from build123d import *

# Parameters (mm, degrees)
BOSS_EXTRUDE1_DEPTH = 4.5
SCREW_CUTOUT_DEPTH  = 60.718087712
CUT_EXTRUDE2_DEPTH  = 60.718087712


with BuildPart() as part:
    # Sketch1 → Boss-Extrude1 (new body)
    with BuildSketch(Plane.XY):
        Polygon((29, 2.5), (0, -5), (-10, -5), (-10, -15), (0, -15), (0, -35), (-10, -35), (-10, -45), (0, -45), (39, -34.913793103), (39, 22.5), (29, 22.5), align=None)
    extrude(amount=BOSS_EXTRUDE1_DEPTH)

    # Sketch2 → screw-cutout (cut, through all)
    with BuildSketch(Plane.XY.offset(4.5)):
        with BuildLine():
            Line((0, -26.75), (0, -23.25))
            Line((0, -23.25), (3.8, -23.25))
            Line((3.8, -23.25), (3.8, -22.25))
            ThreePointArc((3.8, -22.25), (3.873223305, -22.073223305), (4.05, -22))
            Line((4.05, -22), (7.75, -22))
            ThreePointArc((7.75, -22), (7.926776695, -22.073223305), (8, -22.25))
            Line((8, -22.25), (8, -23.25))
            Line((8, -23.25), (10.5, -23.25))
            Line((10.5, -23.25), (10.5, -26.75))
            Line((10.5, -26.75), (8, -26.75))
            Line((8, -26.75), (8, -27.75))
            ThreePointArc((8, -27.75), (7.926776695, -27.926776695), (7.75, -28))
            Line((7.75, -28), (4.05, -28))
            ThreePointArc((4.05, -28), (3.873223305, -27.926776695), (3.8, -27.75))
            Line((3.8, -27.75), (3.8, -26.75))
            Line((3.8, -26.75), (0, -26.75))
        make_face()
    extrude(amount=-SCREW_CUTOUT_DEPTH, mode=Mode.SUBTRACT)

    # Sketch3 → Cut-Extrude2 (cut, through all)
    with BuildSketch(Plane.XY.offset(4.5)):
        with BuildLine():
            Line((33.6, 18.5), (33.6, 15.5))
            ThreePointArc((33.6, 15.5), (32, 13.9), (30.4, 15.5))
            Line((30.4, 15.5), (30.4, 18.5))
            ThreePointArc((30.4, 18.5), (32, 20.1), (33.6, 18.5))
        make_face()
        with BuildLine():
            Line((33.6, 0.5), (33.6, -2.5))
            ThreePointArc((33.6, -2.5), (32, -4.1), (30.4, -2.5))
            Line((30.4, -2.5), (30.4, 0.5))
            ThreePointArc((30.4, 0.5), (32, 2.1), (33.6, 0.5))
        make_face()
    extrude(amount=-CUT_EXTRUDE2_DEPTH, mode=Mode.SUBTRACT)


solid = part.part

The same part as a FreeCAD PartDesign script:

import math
import FreeCAD as App
import Part
import Sketcher


def add_polygon(sketch, points):
    """Adds a closed chain of lines whose ends are joined by coincident constraints."""
    first, n = sketch.GeometryCount, len(points)
    for a, b in zip(points, points[1:] + points[:1]):
        sketch.addGeometry(Part.LineSegment(App.Vector(*a, 0), App.Vector(*b, 0)), False)
    for i in range(n):
        sketch.addConstraint(Sketcher.Constraint("Coincident", first + i, 2, first + (i + 1) % n, 1))

doc = App.newDocument("Part")
body = doc.addObject("PartDesign::Body", "Body")

sketch1 = body.newObject("Sketcher::SketchObject", "Sketch")
sketch1.AttachmentSupport = (doc.getObject("XY_Plane"), [""])
sketch1.MapMode = "FlatFace"
add_polygon(sketch1, [(29, 2), (0, -5), (-10, -5), (-10, -15), (0, -15), (0, -35), (-10, -35), (-10, -45), (0, -45), (39, -35), (39, 22), (29, 22)])
sketch1.addConstraint([
    Sketcher.Constraint("Horizontal", 1),
    Sketcher.Constraint("Vertical", 2),
    Sketcher.Constraint("Horizontal", 3),
    Sketcher.Constraint("Vertical", 4),
    Sketcher.Constraint("Horizontal", 5),
    Sketcher.Constraint("Vertical", 6),
    Sketcher.Constraint("Horizontal", 7),
    Sketcher.Constraint("Vertical", 9),
    Sketcher.Constraint("Horizontal", 10),
    Sketcher.Constraint("Vertical", 11),
    Sketcher.Constraint("PointOnObject", 0, 2, -2),
    Sketcher.Constraint("PointOnObject", 3, 2, -2),
    Sketcher.Constraint("PointOnObject", 7, 2, -2),
    Sketcher.Constraint("Parallel", 0, 8),
    Sketcher.Constraint("Vertical", 2, 2, 5, 2),
    Sketcher.Constraint("Equal", 7, 10),
    Sketcher.Constraint("Equal", 10, 2),
    Sketcher.Constraint("Equal", 2, 6),
    Sketcher.Constraint("Equal", 4, 11),
    Sketcher.Constraint("DistanceX", 1, 2, 1, 1, 10.0),
    Sketcher.Constraint("DistanceY", 4, 2, 4, 1, 20.0),
    Sketcher.Constraint("DistanceY", 0, 2, -1, 1, 5.0),
    Sketcher.Constraint("DistanceX", -1, 1, 8, 2, 39.0),
    Sketcher.Constraint("DistanceY", -1, 1, 9, 2, 22.5),
])
pad1 = body.newObject("PartDesign::Pad", "Pad")
pad1.Profile = sketch1
pad1.Length = 4.5

sketch2 = body.newObject("Sketcher::SketchObject", "Sketch001")
sketch2.AttachmentSupport = (doc.getObject("XY_Plane"), [""])
sketch2.MapMode = "FlatFace"
sketch2.AttachmentOffset = App.Placement(App.Vector(0, 0, 4.5), App.Rotation())
sketch2.addGeometry([
    Part.LineSegment(App.Vector(0, -23.25, 0), App.Vector(0, -26.75, 0)),
    Part.LineSegment(App.Vector(0, -26.75, 0), App.Vector(3.8, -26.75, 0)),
    Part.LineSegment(App.Vector(3.8, -26.75, 0), App.Vector(3.8, -27.75, 0)),
    Part.ArcOfCircle(Part.Circle(App.Vector(4.05, -27.75, 0), App.Vector(0, 0, 1), 0.25), math.radians(-180), math.radians(-90)),
    Part.LineSegment(App.Vector(4.05, -28, 0), App.Vector(7.75, -28, 0)),
    Part.ArcOfCircle(Part.Circle(App.Vector(7.75, -27.75, 0), App.Vector(0, 0, 1), 0.25), math.radians(-90), math.radians(0)),
    Part.LineSegment(App.Vector(8, -27.75, 0), App.Vector(8, -26.75, 0)),
    Part.LineSegment(App.Vector(8, -26.75, 0), App.Vector(10.5, -26.75, 0)),
    Part.LineSegment(App.Vector(10.5, -26.75, 0), App.Vector(10.5, -23.25, 0)),
    Part.LineSegment(App.Vector(10.5, -23.25, 0), App.Vector(8, -23.25, 0)),
    Part.LineSegment(App.Vector(8, -23.25, 0), App.Vector(8, -22.25, 0)),
    Part.ArcOfCircle(Part.Circle(App.Vector(7.75, -22.25, 0), App.Vector(0, 0, 1), 0.25), math.radians(0), math.radians(90)),
    Part.LineSegment(App.Vector(7.75, -22, 0), App.Vector(4.05, -22, 0)),
    Part.ArcOfCircle(Part.Circle(App.Vector(4.05, -22.25, 0), App.Vector(0, 0, 1), 0.25), math.radians(90), math.radians(180)),
    Part.LineSegment(App.Vector(3.8, -22.25, 0), App.Vector(3.8, -23.25, 0)),
    Part.LineSegment(App.Vector(3.8, -23.25, 0), App.Vector(0, -23.25, 0)),
], False)
sketch2.addConstraint([
    Sketcher.Constraint("Coincident", 0, 2, 1, 1),
    Sketcher.Constraint("Coincident", 1, 2, 2, 1),
    Sketcher.Constraint("Tangent", 2, 2, 3, 1),
    Sketcher.Constraint("Tangent", 3, 2, 4, 1),
    Sketcher.Constraint("Tangent", 4, 2, 5, 1),
    Sketcher.Constraint("Tangent", 5, 2, 6, 1),
    Sketcher.Constraint("Coincident", 6, 2, 7, 1),
    Sketcher.Constraint("Coincident", 7, 2, 8, 1),
    Sketcher.Constraint("Coincident", 8, 2, 9, 1),
    Sketcher.Constraint("Coincident", 9, 2, 10, 1),
    Sketcher.Constraint("Tangent", 10, 2, 11, 1),
    Sketcher.Constraint("Tangent", 11, 2, 12, 1),
    Sketcher.Constraint("Tangent", 12, 2, 13, 1),
    Sketcher.Constraint("Tangent", 13, 2, 14, 1),
    Sketcher.Constraint("Coincident", 14, 2, 15, 1),
    Sketcher.Constraint("Coincident", 15, 2, 0, 1),
    Sketcher.Constraint("Vertical", 0),
    Sketcher.Constraint("Horizontal", 1),
    Sketcher.Constraint("Vertical", 2),
    Sketcher.Constraint("Horizontal", 4),
    Sketcher.Constraint("Vertical", 6),
    Sketcher.Constraint("Horizontal", 7),
    Sketcher.Constraint("Vertical", 8),
    Sketcher.Constraint("Horizontal", 9),
    Sketcher.Constraint("Vertical", 10),
    Sketcher.Constraint("Horizontal", 12),
    Sketcher.Constraint("Vertical", 14),
    Sketcher.Constraint("Horizontal", 15),
    Sketcher.Constraint("Equal", 3, 5),
    Sketcher.Constraint("Equal", 5, 11),
    Sketcher.Constraint("Equal", 11, 13),
    Sketcher.Constraint("PointOnObject", 0, 2, -2),
    Sketcher.Constraint("Horizontal", 1, 2, 6, 2),
    Sketcher.Constraint("Horizontal", 9, 2, 14, 2),
    Sketcher.Constraint("Vertical", 5, 3, 11, 3),
    Sketcher.Constraint("Vertical", 3, 3, 13, 3),
    Sketcher.Constraint("Equal", 6, 10),
    Sketcher.Constraint("DistanceY", 2, 2, 2, 1, 1.0),
    Sketcher.Constraint("Radius", 3, 0.25),
    Sketcher.Constraint("DistanceX", 1, 1, 1, 2, 3.8),
    Sketcher.Constraint("DistanceX", 4, 1, 4, 2, 3.7),
    Sketcher.Constraint("DistanceX", 7, 1, 7, 2, 2.5),
    Sketcher.Constraint("DistanceY", 0, 2, 0, 1, 3.5),
    Sketcher.Constraint("DistanceY", 3, 2, -1, 1, 28.0),
])
pocket1 = body.newObject("PartDesign::Pocket", "Pocket")
pocket1.Profile = sketch2
pocket1.Type = "ThroughAll"

sketch3 = body.newObject("Sketcher::SketchObject", "Sketch002")
sketch3.AttachmentSupport = (doc.getObject("XY_Plane"), [""])
sketch3.MapMode = "FlatFace"
sketch3.AttachmentOffset = App.Placement(App.Vector(0, 0, 4.5), App.Rotation())
sketch3.addGeometry([
    Part.LineSegment(App.Vector(33.6, 15.5, 0), App.Vector(33.6, 18.5, 0)),
    Part.ArcOfCircle(Part.Circle(App.Vector(32, 18.5, 0), App.Vector(0, 0, 1), 1.6), math.radians(0), math.radians(180)),
    Part.LineSegment(App.Vector(30.4, 18.5, 0), App.Vector(30.4, 15.5, 0)),
    Part.ArcOfCircle(Part.Circle(App.Vector(32, 15.5, 0), App.Vector(0, 0, 1), 1.6), math.radians(180), math.radians(360)),
    Part.LineSegment(App.Vector(33.6, -2.5, 0), App.Vector(33.6, 0.5, 0)),
    Part.ArcOfCircle(Part.Circle(App.Vector(32, 0.5, 0), App.Vector(0, 0, 1), 1.6), math.radians(0), math.radians(180)),
    Part.LineSegment(App.Vector(30.4, 0.5, 0), App.Vector(30.4, -2.5, 0)),
    Part.ArcOfCircle(Part.Circle(App.Vector(32, -2.5, 0), App.Vector(0, 0, 1), 1.6), math.radians(180), math.radians(360)),
], False)
sketch3.addConstraint([
    Sketcher.Constraint("Tangent", 0, 2, 1, 1),
    Sketcher.Constraint("Tangent", 1, 2, 2, 1),
    Sketcher.Constraint("Tangent", 2, 2, 3, 1),
    Sketcher.Constraint("Tangent", 3, 2, 0, 1),
    Sketcher.Constraint("Tangent", 4, 2, 5, 1),
    Sketcher.Constraint("Tangent", 5, 2, 6, 1),
    Sketcher.Constraint("Tangent", 6, 2, 7, 1),
    Sketcher.Constraint("Tangent", 7, 2, 4, 1),
    Sketcher.Constraint("Vertical", 0),
    Sketcher.Constraint("Vertical", 2),
    Sketcher.Constraint("Vertical", 4),
    Sketcher.Constraint("Vertical", 6),
    Sketcher.Constraint("Equal", 3, 5),
    Sketcher.Constraint("Vertical", 3, 3, 5, 3),
    Sketcher.Constraint("Equal", 2, 4),
    Sketcher.Constraint("Radius", 1, 1.6),
    Sketcher.Constraint("DistanceY", 0, 1, 0, 2, 3.0),
    Sketcher.Constraint("DistanceX", -1, 1, 1, 3, 32.0),
    Sketcher.Constraint("DistanceY", 5, 3, 3, 3, 15.0),
    Sketcher.Constraint("DistanceY", -1, 1, 1, 3, 18.5),
])
pocket2 = body.newObject("PartDesign::Pocket", "Pocket001")
pocket2.Profile = sketch3
pocket2.Type = "ThroughAll"

doc.recompute()
